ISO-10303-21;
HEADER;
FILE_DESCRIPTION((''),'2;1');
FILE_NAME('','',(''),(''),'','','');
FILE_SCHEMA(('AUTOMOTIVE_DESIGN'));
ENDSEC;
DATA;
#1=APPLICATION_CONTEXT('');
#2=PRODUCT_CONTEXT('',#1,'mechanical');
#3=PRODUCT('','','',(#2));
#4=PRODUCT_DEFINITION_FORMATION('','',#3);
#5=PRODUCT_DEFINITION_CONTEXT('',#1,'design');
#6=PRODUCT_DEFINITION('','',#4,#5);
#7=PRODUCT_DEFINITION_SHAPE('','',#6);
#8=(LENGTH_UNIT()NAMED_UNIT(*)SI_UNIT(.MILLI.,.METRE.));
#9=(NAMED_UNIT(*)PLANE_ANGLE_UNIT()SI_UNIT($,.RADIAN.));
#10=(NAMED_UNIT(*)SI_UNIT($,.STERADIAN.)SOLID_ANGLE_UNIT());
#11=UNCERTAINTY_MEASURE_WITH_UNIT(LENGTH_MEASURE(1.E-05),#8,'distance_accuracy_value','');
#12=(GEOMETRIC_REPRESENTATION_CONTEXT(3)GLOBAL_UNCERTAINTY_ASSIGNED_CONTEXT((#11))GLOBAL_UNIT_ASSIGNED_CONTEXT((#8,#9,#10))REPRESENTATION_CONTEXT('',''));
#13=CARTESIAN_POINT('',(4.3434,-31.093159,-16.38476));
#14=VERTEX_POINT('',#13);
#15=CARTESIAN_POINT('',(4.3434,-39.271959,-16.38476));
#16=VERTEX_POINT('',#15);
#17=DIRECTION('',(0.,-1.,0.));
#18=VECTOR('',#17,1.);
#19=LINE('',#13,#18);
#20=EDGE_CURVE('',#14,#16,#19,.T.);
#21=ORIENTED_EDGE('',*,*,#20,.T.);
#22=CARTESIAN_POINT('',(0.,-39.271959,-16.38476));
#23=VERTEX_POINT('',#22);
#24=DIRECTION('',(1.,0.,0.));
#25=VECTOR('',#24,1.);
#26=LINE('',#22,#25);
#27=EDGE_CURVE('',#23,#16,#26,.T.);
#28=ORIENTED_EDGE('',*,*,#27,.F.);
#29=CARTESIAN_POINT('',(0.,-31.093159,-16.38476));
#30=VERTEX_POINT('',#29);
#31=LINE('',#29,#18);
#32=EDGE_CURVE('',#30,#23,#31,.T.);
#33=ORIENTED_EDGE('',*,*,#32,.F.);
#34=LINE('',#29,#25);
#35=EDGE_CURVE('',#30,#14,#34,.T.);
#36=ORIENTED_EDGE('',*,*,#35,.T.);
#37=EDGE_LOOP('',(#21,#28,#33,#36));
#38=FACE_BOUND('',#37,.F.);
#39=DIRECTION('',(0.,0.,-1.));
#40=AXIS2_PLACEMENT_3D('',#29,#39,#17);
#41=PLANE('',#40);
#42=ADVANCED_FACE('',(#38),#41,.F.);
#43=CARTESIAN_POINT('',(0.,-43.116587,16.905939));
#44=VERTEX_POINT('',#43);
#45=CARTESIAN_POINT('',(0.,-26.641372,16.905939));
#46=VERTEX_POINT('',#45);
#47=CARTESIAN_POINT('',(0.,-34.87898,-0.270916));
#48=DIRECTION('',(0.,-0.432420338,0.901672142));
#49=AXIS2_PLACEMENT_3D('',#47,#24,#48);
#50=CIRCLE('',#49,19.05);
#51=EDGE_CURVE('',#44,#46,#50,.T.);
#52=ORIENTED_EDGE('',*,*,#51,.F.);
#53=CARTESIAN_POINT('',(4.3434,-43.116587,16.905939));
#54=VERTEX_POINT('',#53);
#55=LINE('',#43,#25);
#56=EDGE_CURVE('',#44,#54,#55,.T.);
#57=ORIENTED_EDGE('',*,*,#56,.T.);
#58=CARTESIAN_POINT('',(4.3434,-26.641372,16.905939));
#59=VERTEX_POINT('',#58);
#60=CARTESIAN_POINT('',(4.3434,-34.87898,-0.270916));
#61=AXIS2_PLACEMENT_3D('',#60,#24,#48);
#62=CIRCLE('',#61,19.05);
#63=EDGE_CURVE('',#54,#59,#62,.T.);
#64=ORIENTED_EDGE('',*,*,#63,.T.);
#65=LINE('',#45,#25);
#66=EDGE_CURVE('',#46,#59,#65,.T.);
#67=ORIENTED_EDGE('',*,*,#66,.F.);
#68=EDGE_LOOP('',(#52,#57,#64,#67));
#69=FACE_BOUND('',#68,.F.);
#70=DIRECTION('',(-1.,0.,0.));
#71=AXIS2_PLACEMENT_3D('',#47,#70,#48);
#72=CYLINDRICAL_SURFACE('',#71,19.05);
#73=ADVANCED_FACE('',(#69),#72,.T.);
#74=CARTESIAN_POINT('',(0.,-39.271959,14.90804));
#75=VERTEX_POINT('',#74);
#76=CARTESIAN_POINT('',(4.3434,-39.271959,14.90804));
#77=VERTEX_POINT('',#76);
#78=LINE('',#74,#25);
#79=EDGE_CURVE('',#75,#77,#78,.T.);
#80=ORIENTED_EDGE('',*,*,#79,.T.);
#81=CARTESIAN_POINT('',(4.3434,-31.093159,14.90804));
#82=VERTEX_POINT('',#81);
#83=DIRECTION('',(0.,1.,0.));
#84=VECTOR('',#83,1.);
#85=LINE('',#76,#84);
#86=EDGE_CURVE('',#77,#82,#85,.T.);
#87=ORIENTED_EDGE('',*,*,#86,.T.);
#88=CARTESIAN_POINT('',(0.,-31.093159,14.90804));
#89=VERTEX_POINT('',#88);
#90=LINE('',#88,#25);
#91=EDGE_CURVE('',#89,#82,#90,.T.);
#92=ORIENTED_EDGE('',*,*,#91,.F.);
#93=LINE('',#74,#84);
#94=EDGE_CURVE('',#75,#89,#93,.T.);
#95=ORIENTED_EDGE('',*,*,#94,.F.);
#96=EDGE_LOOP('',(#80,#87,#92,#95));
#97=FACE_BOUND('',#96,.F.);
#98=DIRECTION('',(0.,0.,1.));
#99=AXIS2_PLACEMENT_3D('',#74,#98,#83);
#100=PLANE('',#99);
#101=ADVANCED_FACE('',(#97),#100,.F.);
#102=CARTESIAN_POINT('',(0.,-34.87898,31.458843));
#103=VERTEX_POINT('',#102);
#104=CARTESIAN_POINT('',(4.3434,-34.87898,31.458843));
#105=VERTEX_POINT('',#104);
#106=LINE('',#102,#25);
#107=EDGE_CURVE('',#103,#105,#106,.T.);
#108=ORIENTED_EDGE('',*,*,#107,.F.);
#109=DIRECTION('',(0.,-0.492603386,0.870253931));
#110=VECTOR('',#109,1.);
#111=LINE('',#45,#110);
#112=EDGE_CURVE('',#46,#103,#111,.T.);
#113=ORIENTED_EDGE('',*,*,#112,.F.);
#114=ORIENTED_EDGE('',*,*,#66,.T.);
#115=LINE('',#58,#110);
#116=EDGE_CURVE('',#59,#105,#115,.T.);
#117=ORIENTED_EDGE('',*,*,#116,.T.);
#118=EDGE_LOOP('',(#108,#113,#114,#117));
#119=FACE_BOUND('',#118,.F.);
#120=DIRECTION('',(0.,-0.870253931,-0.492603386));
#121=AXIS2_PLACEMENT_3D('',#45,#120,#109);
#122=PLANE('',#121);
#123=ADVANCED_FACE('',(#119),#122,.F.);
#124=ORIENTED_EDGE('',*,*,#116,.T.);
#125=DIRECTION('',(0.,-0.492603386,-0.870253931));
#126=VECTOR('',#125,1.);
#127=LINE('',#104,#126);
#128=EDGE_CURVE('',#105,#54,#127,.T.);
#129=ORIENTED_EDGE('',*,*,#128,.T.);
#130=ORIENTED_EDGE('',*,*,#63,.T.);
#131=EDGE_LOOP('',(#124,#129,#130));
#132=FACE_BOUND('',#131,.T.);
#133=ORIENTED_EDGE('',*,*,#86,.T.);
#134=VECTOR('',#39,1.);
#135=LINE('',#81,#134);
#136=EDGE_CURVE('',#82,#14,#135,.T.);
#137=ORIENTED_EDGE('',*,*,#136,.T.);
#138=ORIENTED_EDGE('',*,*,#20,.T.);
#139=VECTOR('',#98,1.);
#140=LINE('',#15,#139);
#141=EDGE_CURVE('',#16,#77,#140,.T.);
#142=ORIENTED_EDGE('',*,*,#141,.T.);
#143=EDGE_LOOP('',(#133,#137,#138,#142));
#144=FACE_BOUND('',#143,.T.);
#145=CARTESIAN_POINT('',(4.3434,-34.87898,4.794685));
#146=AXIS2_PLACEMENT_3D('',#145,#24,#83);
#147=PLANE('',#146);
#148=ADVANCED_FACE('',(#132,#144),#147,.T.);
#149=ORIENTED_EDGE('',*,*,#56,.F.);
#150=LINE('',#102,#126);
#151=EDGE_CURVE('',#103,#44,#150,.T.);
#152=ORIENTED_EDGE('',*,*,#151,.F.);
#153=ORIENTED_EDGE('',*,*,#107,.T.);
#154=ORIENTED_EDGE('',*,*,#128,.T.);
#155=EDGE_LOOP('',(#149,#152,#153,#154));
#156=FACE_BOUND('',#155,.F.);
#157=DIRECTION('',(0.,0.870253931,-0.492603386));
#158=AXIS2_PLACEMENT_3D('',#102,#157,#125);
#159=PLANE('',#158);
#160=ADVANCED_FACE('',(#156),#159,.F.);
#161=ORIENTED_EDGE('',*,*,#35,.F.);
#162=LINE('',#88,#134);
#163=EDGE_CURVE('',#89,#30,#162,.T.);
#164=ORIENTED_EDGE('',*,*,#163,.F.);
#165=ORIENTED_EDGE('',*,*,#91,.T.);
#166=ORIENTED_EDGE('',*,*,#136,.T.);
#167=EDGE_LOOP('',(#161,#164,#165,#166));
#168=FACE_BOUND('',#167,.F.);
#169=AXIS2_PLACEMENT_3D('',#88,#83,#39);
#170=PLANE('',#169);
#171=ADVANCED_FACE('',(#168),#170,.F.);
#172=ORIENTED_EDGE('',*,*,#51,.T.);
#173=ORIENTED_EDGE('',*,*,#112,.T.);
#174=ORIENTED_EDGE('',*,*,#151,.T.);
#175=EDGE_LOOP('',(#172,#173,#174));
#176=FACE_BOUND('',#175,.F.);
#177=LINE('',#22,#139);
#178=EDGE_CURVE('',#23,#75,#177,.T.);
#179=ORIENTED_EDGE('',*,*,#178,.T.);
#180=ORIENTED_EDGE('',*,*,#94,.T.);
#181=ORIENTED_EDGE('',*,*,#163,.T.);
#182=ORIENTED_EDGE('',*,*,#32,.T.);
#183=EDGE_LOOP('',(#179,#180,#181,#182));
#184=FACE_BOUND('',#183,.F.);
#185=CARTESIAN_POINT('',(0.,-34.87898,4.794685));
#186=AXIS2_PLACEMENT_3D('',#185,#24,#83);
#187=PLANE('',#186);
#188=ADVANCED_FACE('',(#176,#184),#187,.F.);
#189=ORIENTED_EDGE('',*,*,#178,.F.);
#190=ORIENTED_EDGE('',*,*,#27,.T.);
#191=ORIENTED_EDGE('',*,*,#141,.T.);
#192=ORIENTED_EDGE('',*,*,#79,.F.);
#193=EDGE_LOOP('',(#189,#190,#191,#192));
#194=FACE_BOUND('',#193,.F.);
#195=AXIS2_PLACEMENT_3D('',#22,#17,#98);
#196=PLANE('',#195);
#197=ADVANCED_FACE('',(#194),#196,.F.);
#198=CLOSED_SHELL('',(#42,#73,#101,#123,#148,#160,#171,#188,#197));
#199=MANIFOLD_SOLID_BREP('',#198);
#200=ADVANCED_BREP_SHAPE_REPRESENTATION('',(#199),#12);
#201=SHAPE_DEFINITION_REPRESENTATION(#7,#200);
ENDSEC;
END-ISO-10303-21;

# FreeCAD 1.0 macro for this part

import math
import FreeCAD as App
import Part
import Sketcher

V = App.Vector
Q = App.Units.Quantity

doc = App.newDocument("Part")
body = doc.addObject("PartDesign::Body", "Body")

# Sketch on YZ plane
sketch1 = body.newObject("Sketcher::SketchObject", "Sketch")
sketch1.AttachmentSupport = (doc.getObject("YZ_Plane"), [""])
sketch1.MapMode = "FlatFace"
sketch1.addGeometry([
    Part.LineSegment(V(-26.641372, 16.905939, 0), V(-34.87898, 31.458843, 0)),  # 0
    Part.LineSegment(V(-34.87898, 31.458843, 0), V(-43.116587, 16.905939, 0)),  # 1
    Part.ArcOfCircle(Part.Circle(V(-34.87898, -0.270916, 0), V(0, 0, 1), 19.05), math.radians(115.621259), math.radians(424.378741)),  # 2
    Part.LineSegment(V(-31.093159, -16.38476, 0), V(-39.271959, -16.38476, 0)),  # 3
    Part.LineSegment(V(-39.271959, -16.38476, 0), V(-39.271959, 14.90804, 0)),  # 4
    Part.LineSegment(V(-39.271959, 14.90804, 0), V(-31.093159, 14.90804, 0)),  # 5
    Part.LineSegment(V(-31.093159, 14.90804, 0), V(-31.093159, -16.38476, 0)),  # 6
], False)
sketch1.addConstraint([
    Sketcher.Constraint("Coincident", 0, 2, 1, 1),
    Sketcher.Constraint("Coincident", 1, 2, 2, 1),
    Sketcher.Constraint("Coincident", 2, 2, 0, 1),
    Sketcher.Constraint("Coincident", 3, 2, 4, 1),
    Sketcher.Constraint("Coincident", 4, 2, 5, 1),
    Sketcher.Constraint("Coincident", 5, 2, 6, 1),
    Sketcher.Constraint("Coincident", 6, 2, 3, 1),
    Sketcher.Constraint("Horizontal", 3),
    Sketcher.Constraint("Vertical", 4),
    Sketcher.Constraint("Horizontal", 5),
    Sketcher.Constraint("Vertical", 6),
    Sketcher.Constraint("Horizontal", 1, 2, 2, 2),
    Sketcher.Constraint("Vertical", 2, 3, 0, 2),
    Sketcher.Constraint("Radius", 2, Q("0.75 in")),
    Sketcher.Constraint("DistanceX", 3, 2, 3, 1, Q("0.322 in")),
    Sketcher.Constraint("DistanceY", 4, 1, 4, 2, Q("1.232 in")),
    Sketcher.Constraint("DistanceY", 3, 2, 1, 2, Q("33.290698 mm")),
    Sketcher.Constraint("DistanceX", 2, 3, -1, 1, Q("34.87898 mm")),
    Sketcher.Constraint("DistanceY", -1, 1, 1, 2, Q("16.905939 mm")),
    Sketcher.Constraint("DistanceX", 3, 2, -1, 1, Q("39.271959 mm")),
    Sketcher.Constraint("DistanceY", 2, 3, 0, 2, Q("31.729759 mm")),
    Sketcher.Constraint("DistanceX", 1, 2, 3, 2, Q("3.844629 mm")),
])
pad1 = body.newObject("PartDesign::Pad", "Pad")
pad1.Profile = sketch1
pad1.Length = Q("0.171 in")

doc.recompute()
